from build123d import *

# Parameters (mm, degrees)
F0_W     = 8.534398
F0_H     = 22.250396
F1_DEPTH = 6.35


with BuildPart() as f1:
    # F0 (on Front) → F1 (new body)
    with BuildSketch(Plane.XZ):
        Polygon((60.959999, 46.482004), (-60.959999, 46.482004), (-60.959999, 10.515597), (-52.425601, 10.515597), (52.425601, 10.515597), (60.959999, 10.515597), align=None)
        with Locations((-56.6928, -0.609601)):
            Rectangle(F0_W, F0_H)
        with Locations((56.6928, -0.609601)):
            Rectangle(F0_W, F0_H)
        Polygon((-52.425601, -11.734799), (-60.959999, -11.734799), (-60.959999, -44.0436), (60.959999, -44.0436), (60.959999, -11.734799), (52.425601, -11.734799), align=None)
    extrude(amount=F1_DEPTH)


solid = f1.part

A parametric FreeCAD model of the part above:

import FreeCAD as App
import Part
import Sketcher
from FreeCAD import Vector
Q = App.Units.Quantity

doc = App.newDocument("Part")
body = doc.addObject("PartDesign::Body", "Body")

sketch1 = doc.addObject("Sketcher::SketchObject", "Sketch")
body.addObject(sketch1)
sketch1.AttachmentSupport = (doc.XZ_Plane, [""])
sketch1.MapMode = "FlatFace"
sketch1.addGeometry([
    Part.LineSegment(Vector(61, 46, 0), Vector(-61, 46, 0)),
    Part.LineSegment(Vector(-61, 46, 0), Vector(-61, -44, 0)),
    Part.LineSegment(Vector(-61, -44, 0), Vector(61, -44, 0)),
    Part.LineSegment(Vector(61, -44, 0), Vector(61, 46, 0)),
    Part.LineSegment(Vector(-52, -12, 0), Vector(-52, 11, 0)),
    Part.LineSegment(Vector(-52, 11, 0), Vector(52, 11, 0)),
    Part.LineSegment(Vector(52, 11, 0), Vector(52, -12, 0)),
    Part.LineSegment(Vector(52, -12, 0), Vector(-52, -12, 0)),
], False)
sketch1.addConstraint([
    Sketcher.Constraint("Coincident", 0, 2, 1, 1),
    Sketcher.Constraint("Coincident", 1, 2, 2, 1),
    Sketcher.Constraint("Coincident", 2, 2, 3, 1),
    Sketcher.Constraint("Coincident", 3, 2, 0, 1),
    Sketcher.Constraint("Coincident", 4, 2, 5, 1),
    Sketcher.Constraint("Coincident", 5, 2, 6, 1),
    Sketcher.Constraint("Coincident", 6, 2, 7, 1),
    Sketcher.Constraint("Coincident", 7, 2, 4, 1),
    Sketcher.Constraint("Horizontal", 0),
    Sketcher.Constraint("Vertical", 1),
    Sketcher.Constraint("Horizontal", 2),
    Sketcher.Constraint("Vertical", 3),
    Sketcher.Constraint("Vertical", 4),
    Sketcher.Constraint("Horizontal", 5),
    Sketcher.Constraint("Vertical", 6),
    Sketcher.Constraint("Horizontal", 7),
    Sketcher.Constraint("DistanceX", 0, 2, 0, 1, Q("4.7999999 in")),
    Sketcher.Constraint("DistanceX", 0, 2, -1, 1, Q("2.4 in")),
    Sketcher.Constraint("DistanceX", 5, 1, 5, 2, Q("4.1280001 in")),
    Sketcher.Constraint("DistanceY", 1, 2, 1, 1, Q("3.5640002 in")),
    Sketcher.Constraint("DistanceY", 4, 1, 4, 2, Q("0.8759998 in")),
    Sketcher.Constraint("DistanceY", -1, 1, 0, 2, Q("1.8300002 in")),
    Sketcher.Constraint("DistanceX", 4, 2, -1, 1, Q("2.064 in")),
    Sketcher.Constraint("DistanceY", -1, 1, 4, 2, Q("0.4139999 in")),
])
pad1 = doc.addObject("PartDesign::Pad", "Pad")
body.addObject(pad1)
pad1.Profile = sketch1
pad1.Length = Q("0.25 in")

doc.recompute()
